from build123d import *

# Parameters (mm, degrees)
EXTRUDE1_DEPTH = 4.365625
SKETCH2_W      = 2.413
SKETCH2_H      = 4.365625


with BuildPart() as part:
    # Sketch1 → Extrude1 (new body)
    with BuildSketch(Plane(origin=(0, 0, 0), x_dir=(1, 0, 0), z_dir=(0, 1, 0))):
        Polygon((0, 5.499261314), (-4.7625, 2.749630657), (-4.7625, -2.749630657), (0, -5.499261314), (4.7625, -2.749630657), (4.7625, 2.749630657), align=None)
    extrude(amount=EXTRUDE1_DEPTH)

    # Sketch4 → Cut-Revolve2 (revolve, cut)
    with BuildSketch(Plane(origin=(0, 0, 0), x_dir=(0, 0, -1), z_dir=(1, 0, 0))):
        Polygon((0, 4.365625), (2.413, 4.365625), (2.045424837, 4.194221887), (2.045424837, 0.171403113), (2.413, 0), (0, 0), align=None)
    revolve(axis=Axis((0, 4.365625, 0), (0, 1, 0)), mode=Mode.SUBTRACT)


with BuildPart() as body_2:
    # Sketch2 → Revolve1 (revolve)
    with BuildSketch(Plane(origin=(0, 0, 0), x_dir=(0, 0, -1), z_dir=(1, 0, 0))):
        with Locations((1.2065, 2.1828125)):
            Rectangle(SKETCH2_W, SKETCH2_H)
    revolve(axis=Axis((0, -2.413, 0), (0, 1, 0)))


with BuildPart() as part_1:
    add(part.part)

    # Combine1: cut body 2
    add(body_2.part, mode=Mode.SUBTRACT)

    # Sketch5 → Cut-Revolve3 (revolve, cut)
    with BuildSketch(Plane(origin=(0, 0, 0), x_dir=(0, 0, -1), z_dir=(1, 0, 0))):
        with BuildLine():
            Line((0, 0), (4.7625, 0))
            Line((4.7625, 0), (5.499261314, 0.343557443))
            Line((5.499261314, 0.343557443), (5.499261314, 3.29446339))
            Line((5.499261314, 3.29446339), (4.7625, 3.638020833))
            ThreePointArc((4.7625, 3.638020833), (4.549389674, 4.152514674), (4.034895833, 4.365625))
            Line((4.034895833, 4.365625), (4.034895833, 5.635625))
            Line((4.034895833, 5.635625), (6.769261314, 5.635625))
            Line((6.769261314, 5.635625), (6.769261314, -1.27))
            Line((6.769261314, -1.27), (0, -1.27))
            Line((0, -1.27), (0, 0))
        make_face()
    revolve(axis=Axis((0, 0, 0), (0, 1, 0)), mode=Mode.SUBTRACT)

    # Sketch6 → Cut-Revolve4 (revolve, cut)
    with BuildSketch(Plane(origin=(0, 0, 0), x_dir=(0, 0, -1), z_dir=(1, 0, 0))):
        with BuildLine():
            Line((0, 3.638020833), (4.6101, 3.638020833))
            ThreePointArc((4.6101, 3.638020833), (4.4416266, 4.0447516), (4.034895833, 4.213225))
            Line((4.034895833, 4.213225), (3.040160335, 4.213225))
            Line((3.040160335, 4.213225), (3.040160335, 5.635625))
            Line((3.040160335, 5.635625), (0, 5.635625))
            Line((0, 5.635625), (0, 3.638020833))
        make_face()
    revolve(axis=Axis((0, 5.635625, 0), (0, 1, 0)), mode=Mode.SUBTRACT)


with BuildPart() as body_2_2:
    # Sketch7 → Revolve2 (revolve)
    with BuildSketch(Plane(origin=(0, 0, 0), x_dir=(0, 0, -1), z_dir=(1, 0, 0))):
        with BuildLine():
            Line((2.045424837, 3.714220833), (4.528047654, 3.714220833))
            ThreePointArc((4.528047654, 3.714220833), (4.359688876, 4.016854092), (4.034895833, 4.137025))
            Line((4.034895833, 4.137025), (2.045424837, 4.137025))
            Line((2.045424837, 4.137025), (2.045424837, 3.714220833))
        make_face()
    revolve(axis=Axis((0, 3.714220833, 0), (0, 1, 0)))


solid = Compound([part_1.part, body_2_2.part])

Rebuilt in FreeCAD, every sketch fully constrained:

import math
import FreeCAD as App
import Part
import Sketcher
from FreeCAD import Vector
Q = App.Units.Quantity

doc = App.newDocument("Part")
body = doc.addObject("PartDesign::Body", "Body")

# Sketch on XZ plane
sketch1 = body.newObject("Sketcher::SketchObject", "Sketch")
sketch1.AttachmentSupport = (doc.getObject("XZ_Plane"), [""])
sketch1.MapMode = "FlatFace"
sketch1.addGeometry([
    Part.LineSegment(Vector(0, -5, 0), Vector(-5, -3, 0)),  # 0
    Part.LineSegment(Vector(-5, -3, 0), Vector(-5, 3, 0)),  # 1
    Part.LineSegment(Vector(-5, 3, 0), Vector(0, 5, 0)),  # 2
    Part.LineSegment(Vector(0, 5, 0), Vector(5, 3, 0)),  # 3
    Part.LineSegment(Vector(5, 3, 0), Vector(5, -3, 0)),  # 4
    Part.LineSegment(Vector(5, -3, 0), Vector(0, -5, 0)),  # 5
], False)
sketch1.addConstraint([
    Sketcher.Constraint("Coincident", 0, 2, 1, 1),
    Sketcher.Constraint("Coincident", 1, 2, 2, 1),
    Sketcher.Constraint("Coincident", 2, 2, 3, 1),
    Sketcher.Constraint("Coincident", 3, 2, 4, 1),
    Sketcher.Constraint("Coincident", 4, 2, 5, 1),
    Sketcher.Constraint("Coincident", 5, 2, 0, 1),
    Sketcher.Constraint("Vertical", 1),
    Sketcher.Constraint("Vertical", 4),
    Sketcher.Constraint("Symmetric", 0, 2, 3, 2, -1, 1),
    Sketcher.Constraint("Symmetric", 2, 2, 5, 2, -1, 1),
    Sketcher.Constraint("PointOnObject", 2, 2, -2),
    Sketcher.Constraint("Parallel", 2, 5),
    Sketcher.Constraint("Horizontal", 1, 2, 3, 2),
    Sketcher.Constraint("Angle", 0, Q("150 deg")),
    Sketcher.Constraint("DistanceX", 0, 2, -1, 1, Q("0.1875 in")),
    Sketcher.Constraint("DistanceY", 1, 1, 1, 2, 5.499261),
])
pad1 = body.newObject("PartDesign::Pad", "Pad")
pad1.Profile = sketch1
pad1.Length = Q("0.171875 in")
pad1.Reversed = True

# Sketch on YZ plane
sketch2 = body.newObject("Sketcher::SketchObject", "Sketch001")
sketch2.AttachmentSupport = (doc.getObject("YZ_Plane"), [""])
sketch2.MapMode = "FlatFace"
sketch2.addGeometry([
    Part.LineSegment(Vector(4.37, -2.41, 0), Vector(4.37, 0, 0)),  # 0
    Part.LineSegment(Vector(4.37, 0, 0), Vector(0, 0, 0)),  # 1
    Part.LineSegment(Vector(0, 0, 0), Vector(0, -2.41, 0)),  # 2
    Part.LineSegment(Vector(0, -2.41, 0), Vector(0.17, -2.05, 0)),  # 3
    Part.LineSegment(Vector(0.17, -2.05, 0), Vector(4.19, -2.05, 0)),  # 4
    Part.LineSegment(Vector(4.19, -2.05, 0), Vector(4.37, -2.41, 0)),  # 5
], False)
sketch2.addConstraint([
    Sketcher.Constraint("Coincident", 0, 2, 1, 1),
    Sketcher.Constraint("Coincident", 1, 2, 2, 1),
    Sketcher.Constraint("Coincident", 2, 2, 3, 1),
    Sketcher.Constraint("Coincident", 3, 2, 4, 1),
    Sketcher.Constraint("Coincident", 4, 2, 5, 1),
    Sketcher.Constraint("Coincident", 5, 2, 0, 1),
    Sketcher.Constraint("Vertical", 0),
    Sketcher.Constraint("Horizontal", 1),
    Sketcher.Constraint("Vertical", 2),
    Sketcher.Constraint("Horizontal", 4),
    Sketcher.Constraint("Coincident", 1, 2, -1, 1),
    Sketcher.Constraint("Horizontal", 2, 2, 5, 2),
    Sketcher.Constraint("Equal", 3, 5),
    Sketcher.Constraint("Angle", 3, Q("65 deg")),
    Sketcher.Constraint("DistanceX", 1, 2, 1, 1, Q("0.171875 in")),
    Sketcher.Constraint("DistanceY", 0, 1, 0, 2, Q("0.095 in")),
    Sketcher.Constraint("DistanceX", 4, 1, 4, 2, 4.022819),
])
groove = body.newObject("PartDesign::Groove", "Groove")
groove.Profile = sketch2
groove.ReferenceAxis = (sketch2, ["H_Axis"])
groove.Angle = 360
body2 = doc.addObject("PartDesign::Body", "Body001")

# Sketch on YZ plane
sketch3 = body2.newObject("Sketcher::SketchObject", "Sketch002")
sketch3.AttachmentSupport = (doc.getObject("YZ_Plane001"), [""])
sketch3.MapMode = "FlatFace"
sketch3.addGeometry([
    Part.LineSegment(Vector(4.4, 0, 0), Vector(0, 0, 0)),
    Part.LineSegment(Vector(0, 0, 0), Vector(0, -2.4, 0)),
    Part.LineSegment(Vector(0, -2.4, 0), Vector(4.4, -2.4, 0)),
    Part.LineSegment(Vector(4.4, -2.4, 0), Vector(4.4, 0, 0)),
], False)
sketch3.addConstraint([
    Sketcher.Constraint("Coincident", 0, 2, 1, 1),
    Sketcher.Constraint("Coincident", 1, 2, 2, 1),
    Sketcher.Constraint("Coincident", 2, 2, 3, 1),
    Sketcher.Constraint("Coincident", 3, 2, 0, 1),
    Sketcher.Constraint("Horizontal", 0),
    Sketcher.Constraint("Vertical", 1),
    Sketcher.Constraint("Horizontal", 2),
    Sketcher.Constraint("Vertical", 3),
    Sketcher.Constraint("Coincident", 0, 2, -1, 1),
    Sketcher.Constraint("DistanceX", 0, 2, 0, 1, Q("0.171875 in")),
    Sketcher.Constraint("DistanceY", 1, 2, 1, 1, Q("0.095 in")),
])
revolution = body2.newObject("PartDesign::Revolution", "Revolution")
revolution.Profile = sketch3
revolution.ReferenceAxis = (sketch3, ["H_Axis"])
revolution.Angle = 360
doc.recompute()

boolean = body.newObject("PartDesign::Boolean", "Boolean")
boolean.Type = "Cut"
boolean.addObjects([body2])

# Sketch on YZ plane
sketch4 = body.newObject("Sketcher::SketchObject", "Sketch003")
sketch4.AttachmentSupport = (doc.getObject("YZ_Plane"), [""])
sketch4.MapMode = "FlatFace"
sketch4.addGeometry([
    Part.LineSegment(Vector(0, -4.8, 0), Vector(0, 0, 0)),  # 0
    Part.LineSegment(Vector(0, 0, 0), Vector(-1.3, 0, 0)),  # 1
    Part.LineSegment(Vector(-1.3, 0, 0), Vector(-1.3, -6.8, 0)),  # 2
    Part.LineSegment(Vector(-1.3, -6.8, 0), Vector(5.6, -6.8, 0)),  # 3
    Part.LineSegment(Vector(5.6, -6.8, 0), Vector(5.6, -4, 0)),  # 4
    Part.LineSegment(Vector(5.6, -4, 0), Vector(4.4, -4, 0)),  # 5
    Part.ArcOfCircle(Part.Circle(Vector(3.6, -4, 0), Vector(0, 0, 1), 0.7), math.radians(-90), math.radians(0)),  # 6
    Part.LineSegment(Vector(3.6, -4.8, 0), Vector(3.3, -5.5, 0)),  # 7
    Part.LineSegment(Vector(3.3, -5.5, 0), Vector(0.3, -5.5, 0)),  # 8
    Part.LineSegment(Vector(0.3, -5.5, 0), Vector(0, -4.8, 0)),  # 9
], False)
sketch4.addConstraint([
    Sketcher.Constraint("Coincident", 0, 2, 1, 1),
    Sketcher.Constraint("Coincident", 1, 2, 2, 1),
    Sketcher.Constraint("Coincident", 2, 2, 3, 1),
    Sketcher.Constraint("Coincident", 3, 2, 4, 1),
    Sketcher.Constraint("Coincident", 4, 2, 5, 1),
    Sketcher.Constraint("Coincident", 5, 2, 6, 2),
    Sketcher.Constraint("Coincident", 6, 1, 7, 1),
    Sketcher.Constraint("Coincident", 7, 2, 8, 1),
    Sketcher.Constraint("Coincident", 8, 2, 9, 1),
    Sketcher.Constraint("Coincident", 9, 2, 0, 1),
    Sketcher.Constraint("Vertical", 0),
    Sketcher.Constraint("Horizontal", 1),
    Sketcher.Constraint("Vertical", 2),
    Sketcher.Constraint("Horizontal", 3),
    Sketcher.Constraint("Vertical", 4),
    Sketcher.Constraint("Horizontal", 5),
    Sketcher.Constraint("Horizontal", 8),
    Sketcher.Constraint("Coincident", 0, 2, -1, 1),
    Sketcher.Constraint("Horizontal", 6, 3, 4, 2),
    Sketcher.Constraint("Horizontal", 6, 1, 9, 2),
    Sketcher.Constraint("Equal", 1, 5),
    Sketcher.Constraint("Equal", 7, 9),
    Sketcher.Constraint("Angle", 7, Q("-115 deg")),
    Sketcher.Constraint("DistanceX", 1, 2, 1, 1, Q("0.05 in")),
    Sketcher.Constraint("DistanceY", 0, 1, 0, 2, Q("0.1875 in")),
    Sketcher.Constraint("DistanceY", 3, 2, 7, 2, Q("0.05 in")),
    Sketcher.Constraint("DistanceX", -1, 1, 5, 2, Q("0.171875 in")),
    Sketcher.Constraint("Radius", 6, 0.727604),
    Sketcher.Constraint("DistanceY", 2, 2, 2, 1, 6.769261),
    Sketcher.Constraint("DistanceX", 8, 2, 8, 1, 2.950906),
])
groove2 = body.newObject("PartDesign::Groove", "Groove001")
groove2.Profile = sketch4
groove2.ReferenceAxis = (sketch4, ["H_Axis"])
groove2.Angle = 360

# Sketch on YZ plane
sketch5 = body.newObject("Sketcher::SketchObject", "Sketch004")
sketch5.AttachmentSupport = (doc.getObject("YZ_Plane"), [""])
sketch5.MapMode = "FlatFace"
sketch5.addGeometry([
    Part.LineSegment(Vector(3.6, 0, 0), Vector(3.6, -4.6, 0)),  # 0
    Part.ArcOfCircle(Part.Circle(Vector(3.6, -4, 0), Vector(0, 0, 1), 0.6), math.radians(-90), math.radians(0)),  # 1
    Part.LineSegment(Vector(4.2, -4, 0), Vector(4.2, -3, 0)),  # 2
    Part.LineSegment(Vector(4.2, -3, 0), Vector(5.6, -3, 0)),  # 3
    Part.LineSegment(Vector(5.6, -3, 0), Vector(5.6, 0, 0)),  # 4
    Part.LineSegment(Vector(5.6, 0, 0), Vector(3.6, 0, 0)),  # 5
], False)
sketch5.addConstraint([
    Sketcher.Constraint("Coincident", 0, 2, 1, 1),
    Sketcher.Constraint("Tangent", 1, 2, 2, 1),
    Sketcher.Constraint("Coincident", 2, 2, 3, 1),
    Sketcher.Constraint("Coincident", 3, 2, 4, 1),
    Sketcher.Constraint("Coincident", 4, 2, 5, 1),
    Sketcher.Constraint("Coincident", 5, 2, 0, 1),
    Sketcher.Constraint("Vertical", 0),
    Sketcher.Constraint("Vertical", 2),
    Sketcher.Constraint("Horizontal", 3),
    Sketcher.Constraint("Vertical", 4),
    Sketcher.Constraint("Horizontal", 5),
    Sketcher.Constraint("PointOnObject", 4, 2, -1),
    Sketcher.Constraint("Vertical", 1, 3, 0, 2),
    Sketcher.Constraint("DistanceX", 3, 1, 3, 2, Q("0.056 in")),
    Sketcher.Constraint("DistanceY", 0, 2, 0, 1, Q("0.1815 in")),
    Sketcher.Constraint("Radius", 1, 0.575204),
    Sketcher.Constraint("DistanceY", 4, 1, 4, 2, 3.04016),
    Sketcher.Constraint("DistanceX", -1, 1, 1, 3, 3.638021),
])
groove3 = body.newObject("PartDesign::Groove", "Groove002")
groove3.Profile = sketch5
groove3.ReferenceAxis = (sketch5, ["H_Axis"])
groove3.Angle = 360
body3 = doc.addObject("PartDesign::Body", "Body002")

# Sketch on YZ plane
sketch6 = body3.newObject("Sketcher::SketchObject", "Sketch005")
sketch6.AttachmentSupport = (doc.getObject("YZ_Plane002"), [""])
sketch6.MapMode = "FlatFace"
sketch6.addGeometry([
    Part.LineSegment(Vector(3.71, -2.05, 0), Vector(3.71, -4.53, 0)),
    Part.ArcOfCircle(Part.Circle(Vector(3.64, -4.03, 0), Vector(0, 0, 1), 0.5), math.radians(-81), math.radians(0)),
    Part.LineSegment(Vector(4.14, -4.03, 0), Vector(4.14, -2.05, 0)),
    Part.LineSegment(Vector(4.14, -2.05, 0), Vector(3.71, -2.05, 0)),
], False)
sketch6.addConstraint([
    Sketcher.Constraint("Coincident", 0, 2, 1, 1),
    Sketcher.Constraint("Tangent", 1, 2, 2, 1),
    Sketcher.Constraint("Coincident", 2, 2, 3, 1),
    Sketcher.Constraint("Coincident", 3, 2, 0, 1),
    Sketcher.Constraint("Vertical", 0),
    Sketcher.Constraint("Vertical", 2),
    Sketcher.Constraint("Horizontal", 3),
    Sketcher.Constraint("DistanceX", 1, 3, 0, 2, Q("0.003 in")),
    Sketcher.Constraint("Radius", 1, 0.499004),
    Sketcher.Constraint("DistanceY", 2, 1, 2, 2, 1.989471),
    Sketcher.Constraint("DistanceX", -1, 1, 1, 3, 3.638021),
    Sketcher.Constraint("DistanceY", 1, 3, -1, 1, 4.034896),
])
revolution2 = body3.newObject("PartDesign::Revolution", "Revolution001")
revolution2.Profile = sketch6
revolution2.ReferenceAxis = (sketch6, ["H_Axis"])
revolution2.Angle = 360

doc.recompute()
